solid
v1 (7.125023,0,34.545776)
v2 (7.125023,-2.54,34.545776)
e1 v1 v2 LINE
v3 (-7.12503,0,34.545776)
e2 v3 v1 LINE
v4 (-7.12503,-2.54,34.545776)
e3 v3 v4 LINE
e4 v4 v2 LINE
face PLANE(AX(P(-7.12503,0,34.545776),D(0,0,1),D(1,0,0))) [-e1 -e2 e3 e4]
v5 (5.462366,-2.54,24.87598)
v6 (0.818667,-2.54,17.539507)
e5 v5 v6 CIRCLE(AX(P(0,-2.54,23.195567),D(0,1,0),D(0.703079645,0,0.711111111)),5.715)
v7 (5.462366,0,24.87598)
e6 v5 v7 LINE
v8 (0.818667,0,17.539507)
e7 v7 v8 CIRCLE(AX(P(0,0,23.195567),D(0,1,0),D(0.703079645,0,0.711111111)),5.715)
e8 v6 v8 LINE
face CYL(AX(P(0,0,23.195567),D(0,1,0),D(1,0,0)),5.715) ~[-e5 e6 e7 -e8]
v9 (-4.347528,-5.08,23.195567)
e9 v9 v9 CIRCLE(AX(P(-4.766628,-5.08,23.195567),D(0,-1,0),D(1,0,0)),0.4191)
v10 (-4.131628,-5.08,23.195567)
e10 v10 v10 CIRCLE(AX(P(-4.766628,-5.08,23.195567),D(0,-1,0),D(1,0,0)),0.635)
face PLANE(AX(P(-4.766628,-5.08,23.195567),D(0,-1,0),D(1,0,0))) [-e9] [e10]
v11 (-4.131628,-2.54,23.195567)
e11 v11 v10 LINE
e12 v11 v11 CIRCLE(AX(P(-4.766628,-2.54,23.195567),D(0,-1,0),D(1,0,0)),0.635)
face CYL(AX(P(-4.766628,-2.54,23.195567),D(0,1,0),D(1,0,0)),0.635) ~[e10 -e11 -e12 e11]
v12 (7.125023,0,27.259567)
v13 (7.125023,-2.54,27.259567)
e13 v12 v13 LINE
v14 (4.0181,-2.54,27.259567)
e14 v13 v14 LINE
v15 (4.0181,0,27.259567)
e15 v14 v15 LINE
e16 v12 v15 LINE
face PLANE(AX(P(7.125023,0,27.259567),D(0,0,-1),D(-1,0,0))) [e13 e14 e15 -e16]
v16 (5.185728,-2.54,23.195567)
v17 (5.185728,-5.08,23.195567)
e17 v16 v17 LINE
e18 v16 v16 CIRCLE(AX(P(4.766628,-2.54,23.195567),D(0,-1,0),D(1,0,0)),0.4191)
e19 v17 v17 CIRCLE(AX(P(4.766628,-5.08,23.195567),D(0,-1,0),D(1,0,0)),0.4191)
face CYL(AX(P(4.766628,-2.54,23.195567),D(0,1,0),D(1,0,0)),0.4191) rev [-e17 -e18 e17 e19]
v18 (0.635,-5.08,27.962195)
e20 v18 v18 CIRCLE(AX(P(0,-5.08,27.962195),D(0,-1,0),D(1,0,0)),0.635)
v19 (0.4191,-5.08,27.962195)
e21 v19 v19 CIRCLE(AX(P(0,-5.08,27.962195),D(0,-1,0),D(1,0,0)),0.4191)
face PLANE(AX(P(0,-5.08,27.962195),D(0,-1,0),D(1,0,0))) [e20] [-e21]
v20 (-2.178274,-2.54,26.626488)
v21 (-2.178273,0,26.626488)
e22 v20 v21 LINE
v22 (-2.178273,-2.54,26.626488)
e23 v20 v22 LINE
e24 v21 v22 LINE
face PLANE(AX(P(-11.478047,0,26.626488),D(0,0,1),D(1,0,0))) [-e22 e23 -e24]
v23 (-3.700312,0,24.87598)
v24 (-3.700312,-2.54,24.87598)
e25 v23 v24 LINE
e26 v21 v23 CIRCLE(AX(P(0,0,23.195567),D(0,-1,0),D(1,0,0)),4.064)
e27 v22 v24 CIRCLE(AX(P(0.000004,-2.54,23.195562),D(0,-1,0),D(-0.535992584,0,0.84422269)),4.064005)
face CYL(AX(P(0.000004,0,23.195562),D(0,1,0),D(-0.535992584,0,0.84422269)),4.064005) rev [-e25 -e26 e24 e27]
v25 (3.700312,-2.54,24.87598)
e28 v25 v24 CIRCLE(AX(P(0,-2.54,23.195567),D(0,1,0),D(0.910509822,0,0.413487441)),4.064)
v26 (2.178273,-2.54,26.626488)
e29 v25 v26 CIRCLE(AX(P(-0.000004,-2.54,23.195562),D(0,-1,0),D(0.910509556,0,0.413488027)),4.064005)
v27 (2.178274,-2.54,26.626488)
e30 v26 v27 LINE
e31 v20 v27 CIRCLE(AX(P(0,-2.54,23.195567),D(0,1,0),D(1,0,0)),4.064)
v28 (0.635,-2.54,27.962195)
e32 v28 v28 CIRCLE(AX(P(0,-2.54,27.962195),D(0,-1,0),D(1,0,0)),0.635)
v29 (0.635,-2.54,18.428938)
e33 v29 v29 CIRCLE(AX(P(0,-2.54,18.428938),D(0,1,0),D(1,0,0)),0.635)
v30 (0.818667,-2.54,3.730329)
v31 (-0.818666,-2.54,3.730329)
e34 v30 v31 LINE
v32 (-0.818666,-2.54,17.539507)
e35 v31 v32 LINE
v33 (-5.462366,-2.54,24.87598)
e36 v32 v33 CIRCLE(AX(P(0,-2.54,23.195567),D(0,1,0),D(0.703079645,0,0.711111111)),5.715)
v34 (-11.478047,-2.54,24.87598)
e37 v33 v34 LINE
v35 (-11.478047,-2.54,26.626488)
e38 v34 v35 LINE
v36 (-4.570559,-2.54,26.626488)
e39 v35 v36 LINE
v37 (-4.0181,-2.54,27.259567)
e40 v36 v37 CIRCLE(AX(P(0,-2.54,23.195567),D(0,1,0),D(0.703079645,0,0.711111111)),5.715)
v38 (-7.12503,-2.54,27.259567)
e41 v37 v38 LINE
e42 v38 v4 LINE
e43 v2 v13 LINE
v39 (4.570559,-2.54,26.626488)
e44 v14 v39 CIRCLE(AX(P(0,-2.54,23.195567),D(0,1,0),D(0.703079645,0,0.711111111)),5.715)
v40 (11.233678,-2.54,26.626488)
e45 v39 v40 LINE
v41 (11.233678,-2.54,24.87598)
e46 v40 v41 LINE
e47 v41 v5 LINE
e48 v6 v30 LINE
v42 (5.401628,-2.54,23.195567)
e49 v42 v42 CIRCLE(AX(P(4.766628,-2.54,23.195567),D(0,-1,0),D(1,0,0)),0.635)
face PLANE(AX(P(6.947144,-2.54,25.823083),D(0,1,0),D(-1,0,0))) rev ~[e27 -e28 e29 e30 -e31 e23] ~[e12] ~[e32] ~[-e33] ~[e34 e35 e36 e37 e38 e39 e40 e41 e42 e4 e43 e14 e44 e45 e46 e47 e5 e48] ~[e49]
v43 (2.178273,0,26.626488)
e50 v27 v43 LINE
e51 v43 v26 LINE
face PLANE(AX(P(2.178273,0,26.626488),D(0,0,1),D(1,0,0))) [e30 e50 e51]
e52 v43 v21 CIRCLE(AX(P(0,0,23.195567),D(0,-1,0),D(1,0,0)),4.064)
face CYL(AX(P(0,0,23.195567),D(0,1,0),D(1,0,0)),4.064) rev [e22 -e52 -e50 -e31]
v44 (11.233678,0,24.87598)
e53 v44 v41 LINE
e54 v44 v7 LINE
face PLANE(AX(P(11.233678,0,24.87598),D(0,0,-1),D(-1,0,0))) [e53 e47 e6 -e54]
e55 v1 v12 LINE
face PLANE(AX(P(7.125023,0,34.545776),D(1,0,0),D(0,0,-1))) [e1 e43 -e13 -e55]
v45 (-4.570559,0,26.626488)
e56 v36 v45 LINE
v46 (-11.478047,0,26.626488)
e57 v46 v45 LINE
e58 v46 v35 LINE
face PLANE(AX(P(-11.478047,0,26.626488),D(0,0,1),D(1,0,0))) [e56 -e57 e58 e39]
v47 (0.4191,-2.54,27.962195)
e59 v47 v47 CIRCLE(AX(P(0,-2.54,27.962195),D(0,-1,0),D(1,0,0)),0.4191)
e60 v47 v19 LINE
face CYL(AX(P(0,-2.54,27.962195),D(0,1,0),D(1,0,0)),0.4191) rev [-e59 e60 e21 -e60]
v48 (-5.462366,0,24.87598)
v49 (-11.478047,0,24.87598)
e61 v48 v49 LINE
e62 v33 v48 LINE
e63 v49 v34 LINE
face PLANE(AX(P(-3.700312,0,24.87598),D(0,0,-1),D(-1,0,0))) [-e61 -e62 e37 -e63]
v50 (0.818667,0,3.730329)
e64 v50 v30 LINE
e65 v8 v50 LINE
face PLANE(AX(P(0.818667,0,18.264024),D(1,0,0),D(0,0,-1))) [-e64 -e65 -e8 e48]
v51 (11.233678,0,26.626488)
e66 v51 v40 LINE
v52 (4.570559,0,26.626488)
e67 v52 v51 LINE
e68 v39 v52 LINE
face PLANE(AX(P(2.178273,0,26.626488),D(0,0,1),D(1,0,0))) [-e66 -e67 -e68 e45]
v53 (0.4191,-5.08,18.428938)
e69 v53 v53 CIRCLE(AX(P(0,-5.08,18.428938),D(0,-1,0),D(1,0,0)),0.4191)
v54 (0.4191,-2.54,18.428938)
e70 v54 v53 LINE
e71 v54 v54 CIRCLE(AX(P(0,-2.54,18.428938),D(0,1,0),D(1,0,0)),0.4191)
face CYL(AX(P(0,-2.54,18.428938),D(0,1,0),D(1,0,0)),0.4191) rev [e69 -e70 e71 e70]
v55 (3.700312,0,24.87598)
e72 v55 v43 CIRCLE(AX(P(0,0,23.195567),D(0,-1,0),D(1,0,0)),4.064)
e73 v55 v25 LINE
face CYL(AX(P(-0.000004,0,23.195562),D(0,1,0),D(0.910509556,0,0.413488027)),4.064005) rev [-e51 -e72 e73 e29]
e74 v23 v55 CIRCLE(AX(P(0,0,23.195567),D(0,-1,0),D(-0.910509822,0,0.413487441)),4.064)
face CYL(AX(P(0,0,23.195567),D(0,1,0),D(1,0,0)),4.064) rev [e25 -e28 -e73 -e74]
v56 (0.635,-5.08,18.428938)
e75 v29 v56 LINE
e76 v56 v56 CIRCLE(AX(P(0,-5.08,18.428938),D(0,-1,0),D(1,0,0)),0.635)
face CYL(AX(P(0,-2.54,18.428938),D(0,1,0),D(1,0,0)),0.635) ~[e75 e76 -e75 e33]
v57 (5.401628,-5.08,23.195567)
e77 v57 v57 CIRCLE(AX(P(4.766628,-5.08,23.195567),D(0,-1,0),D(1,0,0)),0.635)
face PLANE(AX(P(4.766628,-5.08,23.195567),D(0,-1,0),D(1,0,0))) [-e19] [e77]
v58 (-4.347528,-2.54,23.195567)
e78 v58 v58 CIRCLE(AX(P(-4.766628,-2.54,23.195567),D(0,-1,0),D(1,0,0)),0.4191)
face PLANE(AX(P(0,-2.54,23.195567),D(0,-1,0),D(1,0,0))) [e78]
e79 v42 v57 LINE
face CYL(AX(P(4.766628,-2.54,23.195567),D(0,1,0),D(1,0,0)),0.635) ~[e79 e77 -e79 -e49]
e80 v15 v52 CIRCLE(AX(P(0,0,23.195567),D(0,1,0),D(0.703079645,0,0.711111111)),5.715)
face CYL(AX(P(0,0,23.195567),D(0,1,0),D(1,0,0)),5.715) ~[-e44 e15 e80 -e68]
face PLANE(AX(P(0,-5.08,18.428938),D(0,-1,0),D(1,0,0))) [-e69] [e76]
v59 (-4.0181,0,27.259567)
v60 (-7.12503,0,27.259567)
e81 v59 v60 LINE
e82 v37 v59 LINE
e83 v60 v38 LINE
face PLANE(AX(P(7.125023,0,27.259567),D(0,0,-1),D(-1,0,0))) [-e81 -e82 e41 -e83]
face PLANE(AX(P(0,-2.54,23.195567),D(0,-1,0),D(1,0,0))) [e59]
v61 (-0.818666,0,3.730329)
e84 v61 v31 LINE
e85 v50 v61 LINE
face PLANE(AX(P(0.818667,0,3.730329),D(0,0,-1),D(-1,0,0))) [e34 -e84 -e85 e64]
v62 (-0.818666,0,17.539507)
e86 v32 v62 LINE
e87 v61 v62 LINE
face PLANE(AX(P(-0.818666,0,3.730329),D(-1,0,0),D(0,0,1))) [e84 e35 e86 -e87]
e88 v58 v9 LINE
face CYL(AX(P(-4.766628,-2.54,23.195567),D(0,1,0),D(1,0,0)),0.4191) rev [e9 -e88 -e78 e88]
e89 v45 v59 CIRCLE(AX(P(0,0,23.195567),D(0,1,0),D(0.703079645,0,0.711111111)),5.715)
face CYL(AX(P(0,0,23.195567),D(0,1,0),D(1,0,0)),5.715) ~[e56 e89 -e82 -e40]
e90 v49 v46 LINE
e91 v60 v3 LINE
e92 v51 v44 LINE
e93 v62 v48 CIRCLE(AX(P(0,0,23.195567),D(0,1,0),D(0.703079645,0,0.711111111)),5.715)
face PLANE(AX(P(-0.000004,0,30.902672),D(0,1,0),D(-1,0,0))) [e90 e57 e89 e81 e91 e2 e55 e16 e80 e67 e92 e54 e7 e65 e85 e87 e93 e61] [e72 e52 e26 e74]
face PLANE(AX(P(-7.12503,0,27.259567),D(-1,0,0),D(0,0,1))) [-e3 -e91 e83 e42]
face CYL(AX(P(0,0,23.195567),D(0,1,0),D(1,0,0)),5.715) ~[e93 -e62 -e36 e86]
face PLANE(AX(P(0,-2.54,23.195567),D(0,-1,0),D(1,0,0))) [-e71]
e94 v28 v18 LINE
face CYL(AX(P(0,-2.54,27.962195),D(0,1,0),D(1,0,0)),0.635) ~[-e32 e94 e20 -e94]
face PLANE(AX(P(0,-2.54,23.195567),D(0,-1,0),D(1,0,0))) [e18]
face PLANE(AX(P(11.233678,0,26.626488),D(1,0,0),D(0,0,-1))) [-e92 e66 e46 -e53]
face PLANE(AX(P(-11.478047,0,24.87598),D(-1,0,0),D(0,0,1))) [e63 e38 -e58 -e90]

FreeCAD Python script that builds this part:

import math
import FreeCAD as App
import Part
import Sketcher
from FreeCAD import Vector
Q = App.Units.Quantity

doc = App.newDocument("Part")
body = doc.addObject("PartDesign::Body", "Body")

sketch1 = body.newObject("Sketcher::SketchObject", "Sketch")
sketch1.AttachmentSupport = (doc.getObject("XZ_Plane"), [""])
sketch1.MapMode = "FlatFace"
sketch1.addGeometry([
    Part.Circle(Vector(0, 23.195567, 0), Vector(0, 0, 1), 5.715),
    Part.Circle(Vector(0, 23.195567, 0), Vector(0, 0, 1), 4.064),
], False)
sketch1.addConstraint([
    Sketcher.Constraint("Coincident", 1, 3, 0, 3),
    Sketcher.Constraint("PointOnObject", 0, 3, -2),
    Sketcher.Constraint("Diameter", 0, Q("0.45 in")),
    Sketcher.Constraint("Diameter", 1, Q("0.32 in")),
    Sketcher.Constraint("DistanceY", -1, 1, 0, 3, 23.195567),
])
pad1 = body.newObject("PartDesign::Pad", "Pad")
pad1.Profile = sketch1
pad1.Length = Q("0.1 in")

sketch2 = body.newObject("Sketcher::SketchObject", "Sketch001")
sketch2.AttachmentSupport = (doc.getObject("XZ_Plane"), [""])
sketch2.MapMode = "FlatFace"
sketch2.AttachmentOffset = App.Placement(Vector(0, 0, 0.1 * 25.4), App.Rotation())
sketch2.addGeometry([
    Part.Circle(Vector(0, 27.962195, 0), Vector(0, 0, 1), 0.635),
    Part.Circle(Vector(0, 27.962195, 0), Vector(0, 0, 1), 0.4191),
    Part.Circle(Vector(-4.766628, 23.195567, 0), Vector(0, 0, 1), 0.635),
    Part.Circle(Vector(-4.766628, 23.195567, 0), Vector(0, 0, 1), 0.4191),
    Part.Circle(Vector(0, 18.428938, 0), Vector(0, 0, 1), 0.635),
    Part.Circle(Vector(0, 18.428938, 0), Vector(0, 0, 1), 0.4191),
    Part.Circle(Vector(4.766628, 23.195567, 0), Vector(0, 0, 1), 0.635),
    Part.Circle(Vector(4.766628, 23.195567, 0), Vector(0, 0, 1), 0.4191),
], False)
sketch2.addConstraint([
    Sketcher.Constraint("Coincident", 1, 3, 0, 3),
    Sketcher.Constraint("Coincident", 3, 3, 2, 3),
    Sketcher.Constraint("Coincident", 5, 3, 4, 3),
    Sketcher.Constraint("Coincident", 7, 3, 6, 3),
    Sketcher.Constraint("Equal", 0, 2),
    Sketcher.Constraint("Equal", 1, 3),
    Sketcher.Constraint("Equal", 2, 4),
    Sketcher.Constraint("Equal", 3, 5),
    Sketcher.Constraint("Equal", 4, 6),
    Sketcher.Constraint("Equal", 5, 7),
    Sketcher.Constraint("Symmetric", 2, 3, 6, 3, -2),
    Sketcher.Constraint("PointOnObject", 0, 3, -2),
    Sketcher.Constraint("PointOnObject", 4, 3, -2),
    Sketcher.Constraint("Diameter", 0, Q("0.05 in")),
    Sketcher.Constraint("Diameter", 1, Q("0.033 in")),
    Sketcher.Constraint("DistanceY", 2, 3, 0, 3, 4.766628),
    Sketcher.Constraint("DistanceY", 4, 3, 2, 3, 4.766629),
    Sketcher.Constraint("DistanceY", -1, 1, 0, 3, 27.962195),
    Sketcher.Constraint("DistanceX", 2, 3, -1, 1, 4.766628),
])
pad2 = body.newObject("PartDesign::Pad", "Pad001")
pad2.Profile = sketch2
pad2.Length = Q("0.1 in")

sketch3 = body.newObject("Sketcher::SketchObject", "Sketch002")
sketch3.AttachmentSupport = (doc.getObject("XZ_Plane"), [""])
sketch3.MapMode = "FlatFace"
sketch3.addGeometry([
    Part.LineSegment(Vector(7.125023, 27.259567, 0), Vector(-7.12503, 27.259567, 0)),
    Part.LineSegment(Vector(-7.12503, 27.259567, 0), Vector(-7.12503, 34.545776, 0)),
    Part.LineSegment(Vector(-7.12503, 34.545776, 0), Vector(7.125023, 34.545776, 0)),
    Part.LineSegment(Vector(7.125023, 34.545776, 0), Vector(7.125023, 27.259567, 0)),
], False)
sketch3.addConstraint([
    Sketcher.Constraint("Coincident", 0, 2, 1, 1),
    Sketcher.Constraint("Coincident", 1, 2, 2, 1),
    Sketcher.Constraint("Coincident", 2, 2, 3, 1),
    Sketcher.Constraint("Coincident", 3, 2, 0, 1),
    Sketcher.Constraint("Horizontal", 0),
    Sketcher.Constraint("Vertical", 1),
    Sketcher.Constraint("Horizontal", 2),
    Sketcher.Constraint("Vertical", 3),
    Sketcher.Constraint("DistanceY", 1, 1, 1, 2, 7.286209),
    Sketcher.Constraint("DistanceX", 0, 2, 0, 1, 14.250053),
    Sketcher.Constraint("DistanceX", 0, 2, -1, 1, 7.12503),
    Sketcher.Constraint("DistanceY", -1, 1, 0, 2, 27.259567),
])
pad3 = body.newObject("PartDesign::Pad", "Pad002")
pad3.Profile = sketch3
pad3.Length = Q("0.1 in")

sketch4 = body.newObject("Sketcher::SketchObject", "Sketch003")
sketch4.AttachmentSupport = (doc.getObject("XZ_Plane"), [""])
sketch4.MapMode = "FlatFace"
sketch4.addGeometry([
    Part.LineSegment(Vector(-0.818666, 18.264024, 0), Vector(0.818667, 18.264024, 0)),
    Part.LineSegment(Vector(0.818667, 18.264024, 0), Vector(0.818667, 3.730329, 0)),
    Part.LineSegment(Vector(0.818667, 3.730329, 0), Vector(-0.818666, 3.730329, 0)),
    Part.LineSegment(Vector(-0.818666, 3.730329, 0), Vector(-0.818666, 18.264024, 0)),
], False)
sketch4.addConstraint([
    Sketcher.Constraint("Coincident", 0, 2, 1, 1),
    Sketcher.Constraint("Coincident", 1, 2, 2, 1),
    Sketcher.Constraint("Coincident", 2, 2, 3, 1),
    Sketcher.Constraint("Coincident", 3, 2, 0, 1),
    Sketcher.Constraint("Horizontal", 0),
    Sketcher.Constraint("Vertical", 1),
    Sketcher.Constraint("Horizontal", 2),
    Sketcher.Constraint("Vertical", 3),
    Sketcher.Constraint("DistanceX", 0, 1, 0, 2, 1.637333),
    Sketcher.Constraint("DistanceY", 1, 2, 1, 1, 14.533695),
    Sketcher.Constraint("DistanceY", -1, 1, 1, 2, 3.730329),
    Sketcher.Constraint("DistanceX", -1, 1, 0, 2, 0.818667),
])
pad4 = body.newObject("PartDesign::Pad", "Pad003")
pad4.Profile = sketch4
pad4.Length = Q("0.1 in")

sketch5 = body.newObject("Sketcher::SketchObject", "Sketch004")
sketch5.AttachmentSupport = (doc.getObject("XZ_Plane"), [""])
sketch5.MapMode = "FlatFace"
sketch5.addGeometry([
    Part.LineSegment(Vector(2.178273, 26.626488, 0), Vector(11.233678, 26.626488, 0)),
    Part.LineSegment(Vector(11.233678, 26.626488, 0), Vector(11.233678, 24.87598, 0)),
    Part.LineSegment(Vector(11.233678, 24.87598, 0), Vector(3.700312, 24.87598, 0)),
    Part.ArcOfCircle(Part.Circle(Vector(-0.000004, 23.195562, 0), Vector(0, 0, 1), 4.064005), math.radians(24.424136), math.radians(57.588749)),
    Part.LineSegment(Vector(-11.478047, 24.87598, 0), Vector(-11.478047, 26.626488, 0)),
    Part.LineSegment(Vector(-11.478047, 26.626488, 0), Vector(-2.178273, 26.626488, 0)),
    Part.ArcOfCircle(Part.Circle(Vector(0.000004, 23.195562, 0), Vector(0, 0, 1), 4.064005), math.radians(122.411251), math.radians(155.575864)),
    Part.LineSegment(Vector(-3.700312, 24.87598, 0), Vector(-11.478047, 24.87598, 0)),
], False)
sketch5.addConstraint([
    Sketcher.Constraint("Coincident", 0, 2, 1, 1),
    Sketcher.Constraint("Coincident", 1, 2, 2, 1),
    Sketcher.Constraint("Coincident", 2, 2, 3, 1),
    Sketcher.Constraint("Coincident", 3, 2, 0, 1),
    Sketcher.Constraint("Coincident", 4, 2, 5, 1),
    Sketcher.Constraint("Coincident", 5, 2, 6, 1),
    Sketcher.Constraint("Coincident", 6, 2, 7, 1),
    Sketcher.Constraint("Coincident", 7, 2, 4, 1),
    Sketcher.Constraint("Horizontal", 0),
    Sketcher.Constraint("Vertical", 1),
    Sketcher.Constraint("Horizontal", 2),
    Sketcher.Constraint("Vertical", 4),
    Sketcher.Constraint("Horizontal", 5),
    Sketcher.Constraint("Horizontal", 7),
    Sketcher.Constraint("Coincident", 6, 3, 3, 3),
    Sketcher.Constraint("Equal", 3, 6),
    Sketcher.Constraint("Symmetric", 3, 2, 5, 2, -2),
    Sketcher.Constraint("Horizontal", 2, 2, 6, 2),
    Sketcher.Constraint("Radius", 3, 4.064005),
    Sketcher.Constraint("DistanceX", 0, 1, 0, 2, 9.055405),
    Sketcher.Constraint("DistanceX", 2, 2, 2, 1, 7.533366),
    Sketcher.Constraint("DistanceX", 5, 1, 5, 2, 9.299774),
    Sketcher.Constraint("DistanceY", 1, 2, 1, 1, 1.750508),
    Sketcher.Constraint("DistanceY", -1, 1, 1, 2, 24.87598),
])
pad5 = body.newObject("PartDesign::Pad", "Pad004")
pad5.Profile = sketch5
pad5.Length = Q("0.1 in")

doc.recompute()
